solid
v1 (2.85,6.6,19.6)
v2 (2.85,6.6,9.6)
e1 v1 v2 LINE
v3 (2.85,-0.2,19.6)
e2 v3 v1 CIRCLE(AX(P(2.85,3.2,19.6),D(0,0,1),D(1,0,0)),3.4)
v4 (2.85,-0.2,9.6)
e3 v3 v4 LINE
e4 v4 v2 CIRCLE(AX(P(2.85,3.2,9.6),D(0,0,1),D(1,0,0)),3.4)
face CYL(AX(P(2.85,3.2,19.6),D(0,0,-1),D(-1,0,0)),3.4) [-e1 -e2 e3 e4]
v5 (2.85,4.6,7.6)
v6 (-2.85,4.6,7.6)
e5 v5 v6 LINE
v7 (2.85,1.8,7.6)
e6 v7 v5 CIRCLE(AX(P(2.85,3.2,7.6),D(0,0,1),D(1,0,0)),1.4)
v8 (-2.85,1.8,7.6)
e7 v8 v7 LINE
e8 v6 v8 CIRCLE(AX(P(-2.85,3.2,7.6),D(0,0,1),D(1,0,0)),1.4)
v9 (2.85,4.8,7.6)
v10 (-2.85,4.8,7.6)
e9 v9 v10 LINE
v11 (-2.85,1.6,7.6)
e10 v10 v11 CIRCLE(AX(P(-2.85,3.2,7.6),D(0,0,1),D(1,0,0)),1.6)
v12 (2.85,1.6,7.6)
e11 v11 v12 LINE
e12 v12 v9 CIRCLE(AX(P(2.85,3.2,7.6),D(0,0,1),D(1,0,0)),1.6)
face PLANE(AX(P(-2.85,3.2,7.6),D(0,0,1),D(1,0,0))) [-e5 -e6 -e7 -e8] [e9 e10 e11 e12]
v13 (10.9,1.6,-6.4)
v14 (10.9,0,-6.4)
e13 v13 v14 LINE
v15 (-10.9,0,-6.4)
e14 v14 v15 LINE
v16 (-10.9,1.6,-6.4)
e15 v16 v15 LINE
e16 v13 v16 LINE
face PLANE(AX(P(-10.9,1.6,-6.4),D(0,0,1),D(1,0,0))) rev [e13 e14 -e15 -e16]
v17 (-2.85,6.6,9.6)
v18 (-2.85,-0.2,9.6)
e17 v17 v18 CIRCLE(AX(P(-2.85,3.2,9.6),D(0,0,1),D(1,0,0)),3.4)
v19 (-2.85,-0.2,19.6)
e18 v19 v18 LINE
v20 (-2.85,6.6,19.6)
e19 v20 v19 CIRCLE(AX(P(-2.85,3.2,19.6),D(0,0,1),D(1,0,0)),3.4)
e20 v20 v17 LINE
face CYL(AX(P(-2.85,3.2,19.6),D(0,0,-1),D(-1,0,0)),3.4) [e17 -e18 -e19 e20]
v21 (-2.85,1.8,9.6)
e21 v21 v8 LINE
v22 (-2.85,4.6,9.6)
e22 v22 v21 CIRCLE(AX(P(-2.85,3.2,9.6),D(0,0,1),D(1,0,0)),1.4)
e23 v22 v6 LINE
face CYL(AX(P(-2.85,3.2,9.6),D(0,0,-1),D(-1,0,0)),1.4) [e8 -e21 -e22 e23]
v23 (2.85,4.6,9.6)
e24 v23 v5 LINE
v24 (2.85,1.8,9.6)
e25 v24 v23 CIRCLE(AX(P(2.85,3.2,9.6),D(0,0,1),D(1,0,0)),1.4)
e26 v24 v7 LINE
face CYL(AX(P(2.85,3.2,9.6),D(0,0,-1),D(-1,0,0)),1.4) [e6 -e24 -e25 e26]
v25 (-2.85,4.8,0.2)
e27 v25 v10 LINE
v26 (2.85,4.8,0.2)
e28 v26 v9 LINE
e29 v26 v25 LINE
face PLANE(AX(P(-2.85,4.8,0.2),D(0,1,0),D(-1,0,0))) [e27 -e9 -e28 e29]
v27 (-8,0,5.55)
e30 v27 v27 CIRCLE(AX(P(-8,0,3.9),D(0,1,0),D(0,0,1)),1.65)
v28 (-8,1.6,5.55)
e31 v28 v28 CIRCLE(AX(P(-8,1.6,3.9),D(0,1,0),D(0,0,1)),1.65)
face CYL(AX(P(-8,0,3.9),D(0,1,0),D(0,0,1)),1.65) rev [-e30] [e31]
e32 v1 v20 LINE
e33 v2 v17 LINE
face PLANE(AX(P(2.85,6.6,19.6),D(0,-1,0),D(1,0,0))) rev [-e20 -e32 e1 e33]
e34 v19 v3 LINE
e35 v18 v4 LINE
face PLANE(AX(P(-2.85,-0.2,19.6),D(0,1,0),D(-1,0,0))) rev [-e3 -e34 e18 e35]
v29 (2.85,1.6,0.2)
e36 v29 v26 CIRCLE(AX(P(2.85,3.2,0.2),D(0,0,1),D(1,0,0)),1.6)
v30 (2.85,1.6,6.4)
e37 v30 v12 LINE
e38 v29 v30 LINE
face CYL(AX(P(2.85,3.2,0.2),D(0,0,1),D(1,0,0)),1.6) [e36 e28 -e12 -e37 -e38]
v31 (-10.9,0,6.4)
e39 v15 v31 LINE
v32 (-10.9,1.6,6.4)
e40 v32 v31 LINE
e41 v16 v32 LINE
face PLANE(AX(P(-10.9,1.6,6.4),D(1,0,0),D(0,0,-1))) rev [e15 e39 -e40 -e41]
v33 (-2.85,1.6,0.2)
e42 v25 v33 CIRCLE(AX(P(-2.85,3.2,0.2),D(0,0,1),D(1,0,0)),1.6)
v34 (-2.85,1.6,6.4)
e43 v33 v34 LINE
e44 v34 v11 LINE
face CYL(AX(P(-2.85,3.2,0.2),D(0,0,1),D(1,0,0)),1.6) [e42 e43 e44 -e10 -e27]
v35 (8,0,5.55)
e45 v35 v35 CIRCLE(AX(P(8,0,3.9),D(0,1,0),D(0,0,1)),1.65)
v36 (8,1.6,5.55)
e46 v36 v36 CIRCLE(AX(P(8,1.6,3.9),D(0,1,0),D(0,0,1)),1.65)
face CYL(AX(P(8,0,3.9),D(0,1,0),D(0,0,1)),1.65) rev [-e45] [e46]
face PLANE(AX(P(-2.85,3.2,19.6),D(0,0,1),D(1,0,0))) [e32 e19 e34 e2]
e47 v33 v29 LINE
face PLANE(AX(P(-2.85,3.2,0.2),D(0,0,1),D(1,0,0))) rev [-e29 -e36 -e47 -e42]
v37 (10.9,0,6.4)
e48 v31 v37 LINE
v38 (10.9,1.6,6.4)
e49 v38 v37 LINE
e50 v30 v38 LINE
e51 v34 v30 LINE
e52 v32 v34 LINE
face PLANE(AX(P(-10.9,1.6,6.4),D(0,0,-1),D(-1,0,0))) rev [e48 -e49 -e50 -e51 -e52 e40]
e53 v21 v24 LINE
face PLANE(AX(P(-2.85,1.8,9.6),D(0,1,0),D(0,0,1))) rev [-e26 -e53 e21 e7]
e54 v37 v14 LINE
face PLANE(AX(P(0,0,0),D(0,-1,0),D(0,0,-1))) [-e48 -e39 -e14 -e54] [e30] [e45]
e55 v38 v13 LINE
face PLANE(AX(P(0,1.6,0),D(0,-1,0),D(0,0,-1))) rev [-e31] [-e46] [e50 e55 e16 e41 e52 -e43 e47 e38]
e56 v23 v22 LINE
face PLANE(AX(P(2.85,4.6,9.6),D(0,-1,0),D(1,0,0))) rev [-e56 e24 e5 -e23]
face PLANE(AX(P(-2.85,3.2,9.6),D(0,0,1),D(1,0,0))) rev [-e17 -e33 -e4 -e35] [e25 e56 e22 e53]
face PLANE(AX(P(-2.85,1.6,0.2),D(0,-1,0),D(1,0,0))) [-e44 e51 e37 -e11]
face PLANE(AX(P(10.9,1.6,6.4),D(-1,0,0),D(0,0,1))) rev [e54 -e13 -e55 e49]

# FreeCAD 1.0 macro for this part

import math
import FreeCAD as App
import Part
import Sketcher

V = App.Vector
Q = App.Units.Quantity

doc = App.newDocument("Part")
body = doc.addObject("PartDesign::Body", "Body")

# Sketch on XZ plane
sketch1 = doc.addObject("Sketcher::SketchObject", "Sketch")
body.addObject(sketch1)
sketch1.AttachmentSupport = (doc.XZ_Plane, [""])
sketch1.MapMode = "FlatFace"
sketch1.addGeometry(Part.LineSegment(V(-10.9, -6.4, 0), V(-10.9, 6.4, 0)), False)
sketch1.addGeometry(Part.LineSegment(V(-10.9, 6.4, 0), V(10.9, 6.4, 0)), False)
sketch1.addGeometry(Part.LineSegment(V(10.9, 6.4, 0), V(10.9, -6.4, 0)), False)
sketch1.addGeometry(Part.LineSegment(V(10.9, -6.4, 0), V(-10.9, -6.4, 0)), False)
sketch1.addConstraint(Sketcher.Constraint("Coincident", 0, 2, 1, 1))
sketch1.addConstraint(Sketcher.Constraint("Coincident", 1, 2, 2, 1))
sketch1.addConstraint(Sketcher.Constraint("Coincident", 2, 2, 3, 1))
sketch1.addConstraint(Sketcher.Constraint("Coincident", 3, 2, 0, 1))
sketch1.addConstraint(Sketcher.Constraint("Vertical", 0))
sketch1.addConstraint(Sketcher.Constraint("Horizontal", 1))
sketch1.addConstraint(Sketcher.Constraint("Vertical", 2))
sketch1.addConstraint(Sketcher.Constraint("Horizontal", 3))
sketch1.addConstraint(Sketcher.Constraint("Symmetric", 0, 2, 2, 2, -1, 1))
sketch1.addConstraint(Sketcher.Constraint("DistanceX", 1, 1, 1, 2, Q("21.8 mm")))
sketch1.addConstraint(Sketcher.Constraint("DistanceY", 0, 1, 0, 2, Q("12.8 mm")))
pad1 = doc.addObject("PartDesign::Pad", "Pad")
body.addObject(pad1)
pad1.Profile = sketch1
pad1.Length = 1.6
pad1.Reversed = True

# Sketch on XZ plane
sketch2 = doc.addObject("Sketcher::SketchObject", "Sketch001")
body.addObject(sketch2)
sketch2.AttachmentSupport = (doc.XZ_Plane, [""])
sketch2.MapMode = "FlatFace"
sketch2.AttachmentOffset = App.Placement(V(0, 0, -1.6), App.Rotation())
sketch2.addGeometry(Part.Circle(V(-8, 3.9, 0), V(0, 0, 1), 1.65), False)
sketch2.addGeometry(Part.Circle(V(8, 3.9, 0), V(0, 0, 1), 1.65), False)
sketch2.addConstraint(Sketcher.Constraint("Equal", 0, 1))
sketch2.addConstraint(Sketcher.Constraint("Symmetric", 0, 3, 1, 3, -2))
sketch2.addConstraint(Sketcher.Constraint("Diameter", 0, Q("3.3 mm")))
sketch2.addConstraint(Sketcher.Constraint("DistanceX", 0, 3, -1, 1, Q("8 mm")))
sketch2.addConstraint(Sketcher.Constraint("DistanceY", -1, 1, 0, 3, Q("3.9 mm")))
pocket1 = doc.addObject("PartDesign::Pocket", "Pocket")
body.addObject(pocket1)
pocket1.Profile = sketch2
pocket1.Length = 1.6
pocket1.Reversed = True

# Sketch on XY plane
sketch3 = doc.addObject("Sketcher::SketchObject", "Sketch002")
body.addObject(sketch3)
sketch3.AttachmentSupport = (doc.XY_Plane, [""])
sketch3.MapMode = "FlatFace"
sketch3.AttachmentOffset = App.Placement(V(0, 0, 7.6), App.Rotation())
sketch3.addGeometry(Part.LineSegment(V(2.85, 4.8, 0), V(-2.85, 4.8, 0)), False)
sketch3.addGeometry(Part.ArcOfCircle(Part.Circle(V(-2.85, 3.2, 0), V(0, 0, 1), 1.6), math.radians(90), math.radians(270)), False)
sketch3.addGeometry(Part.LineSegment(V(-2.85, 1.6, 0), V(2.85, 1.6, 0)), False)
sketch3.addGeometry(Part.ArcOfCircle(Part.Circle(V(2.85, 3.2, 0), V(0, 0, 1), 1.6), math.radians(-90), math.radians(90)), False)
sketch3.addConstraint(Sketcher.Constraint("Tangent", 0, 2, 1, 1))
sketch3.addConstraint(Sketcher.Constraint("Tangent", 1, 2, 2, 1))
sketch3.addConstraint(Sketcher.Constraint("Tangent", 2, 2, 3, 1))
sketch3.addConstraint(Sketcher.Constraint("Tangent", 3, 2, 0, 1))
sketch3.addConstraint(Sketcher.Constraint("Horizontal", 0))
sketch3.addConstraint(Sketcher.Constraint("Horizontal", 2))
sketch3.addConstraint(Sketcher.Constraint("Radius", 1, Q("1.6 mm")))
sketch3.addConstraint(Sketcher.Constraint("DistanceX", 0, 2, 0, 1, Q("5.7 mm")))
sketch3.addConstraint(Sketcher.Constraint("DistanceY", -1, 1, 1, 3, Q("3.2 mm")))
sketch3.addConstraint(Sketcher.Constraint("DistanceX", 1, 3, -1, 1, Q("2.85 mm")))
pad2 = doc.addObject("PartDesign::Pad", "Pad001")
body.addObject(pad2)
pad2.Profile = sketch3
pad2.Length = 7.4
pad2.Reversed = True

# Sketch on XY plane
sketch4 = doc.addObject("Sketcher::SketchObject", "Sketch003")
body.addObject(sketch4)
sketch4.AttachmentSupport = (doc.XY_Plane, [""])
sketch4.MapMode = "FlatFace"
sketch4.AttachmentOffset = App.Placement(V(0, 0, 7.6), App.Rotation())
sketch4.addGeometry(Part.LineSegment(V(-2.85, 1.8, 0), V(2.85, 1.8, 0)), False)
sketch4.addGeometry(Part.ArcOfCircle(Part.Circle(V(2.85, 3.2, 0), V(0, 0, 1), 1.4), math.radians(-90), math.radians(90)), False)
sketch4.addGeometry(Part.LineSegment(V(2.85, 4.6, 0), V(-2.85, 4.6, 0)), False)
sketch4.addGeometry(Part.ArcOfCircle(Part.Circle(V(-2.85, 3.2, 0), V(0, 0, 1), 1.4), math.radians(90), math.radians(270)), False)
sketch4.addConstraint(Sketcher.Constraint("Tangent", 0, 2, 1, 1))
sketch4.addConstraint(Sketcher.Constraint("Tangent", 1, 2, 2, 1))
sketch4.addConstraint(Sketcher.Constraint("Tangent", 2, 2, 3, 1))
sketch4.addConstraint(Sketcher.Constraint("Tangent", 3, 2, 0, 1))
sketch4.addConstraint(Sketcher.Constraint("Horizontal", 0))
sketch4.addConstraint(Sketcher.Constraint("Horizontal", 2))
sketch4.addConstraint(Sketcher.Constraint("Radius", 1, Q("1.4 mm")))
sketch4.addConstraint(Sketcher.Constraint("DistanceX", 0, 1, 0, 2, Q("5.7 mm")))
sketch4.addConstraint(Sketcher.Constraint("DistanceY", -1, 1, 1, 3, Q("3.2 mm")))
sketch4.addConstraint(Sketcher.Constraint("DistanceX", -1, 1, 1, 3, Q("2.85 mm")))
pad3 = doc.addObject("PartDesign::Pad", "Pad002")
body.addObject(pad3)
pad3.Profile = sketch4
pad3.Length = 2

# Sketch on XY plane
sketch5 = doc.addObject("Sketcher::SketchObject", "Sketch004")
body.addObject(sketch5)
sketch5.AttachmentSupport = (doc.XY_Plane, [""])
sketch5.MapMode = "FlatFace"
sketch5.AttachmentOffset = App.Placement(V(0, 0, 9.6), App.Rotation())
sketch5.addGeometry(Part.LineSegment(V(-2.85, -0.2, 0), V(2.85, -0.2, 0)), False)
sketch5.addGeometry(Part.ArcOfCircle(Part.Circle(V(2.85, 3.2, 0), V(0, 0, 1), 3.4), math.radians(-90), math.radians(90)), False)
sketch5.addGeometry(Part.LineSegment(V(2.85, 6.6, 0), V(-2.85, 6.6, 0)), False)
sketch5.addGeometry(Part.ArcOfCircle(Part.Circle(V(-2.85, 3.2, 0), V(0, 0, 1), 3.4), math.radians(90), math.radians(270)), False)
sketch5.addConstraint(Sketcher.Constraint("Tangent", 0, 2, 1, 1))
sketch5.addConstraint(Sketcher.Constraint("Tangent", 1, 2, 2, 1))
sketch5.addConstraint(Sketcher.Constraint("Tangent", 2, 2, 3, 1))
sketch5.addConstraint(Sketcher.Constraint("Tangent", 3, 2, 0, 1))
sketch5.addConstraint(Sketcher.Constraint("Horizontal", 0))
sketch5.addConstraint(Sketcher.Constraint("Horizontal", 2))
sketch5.addConstraint(Sketcher.Constraint("Radius", 1, Q("3.4 mm")))
sketch5.addConstraint(Sketcher.Constraint("DistanceX", 0, 1, 0, 2, Q("5.7 mm")))
sketch5.addConstraint(Sketcher.Constraint("DistanceY", -1, 1, 1, 3, Q("3.2 mm")))
sketch5.addConstraint(Sketcher.Constraint("DistanceX", -1, 1, 1, 3, Q("2.85 mm")))
pad4 = doc.addObject("PartDesign::Pad", "Pad003")
body.addObject(pad4)
pad4.Profile = sketch5
pad4.Length = 10

doc.recompute()
